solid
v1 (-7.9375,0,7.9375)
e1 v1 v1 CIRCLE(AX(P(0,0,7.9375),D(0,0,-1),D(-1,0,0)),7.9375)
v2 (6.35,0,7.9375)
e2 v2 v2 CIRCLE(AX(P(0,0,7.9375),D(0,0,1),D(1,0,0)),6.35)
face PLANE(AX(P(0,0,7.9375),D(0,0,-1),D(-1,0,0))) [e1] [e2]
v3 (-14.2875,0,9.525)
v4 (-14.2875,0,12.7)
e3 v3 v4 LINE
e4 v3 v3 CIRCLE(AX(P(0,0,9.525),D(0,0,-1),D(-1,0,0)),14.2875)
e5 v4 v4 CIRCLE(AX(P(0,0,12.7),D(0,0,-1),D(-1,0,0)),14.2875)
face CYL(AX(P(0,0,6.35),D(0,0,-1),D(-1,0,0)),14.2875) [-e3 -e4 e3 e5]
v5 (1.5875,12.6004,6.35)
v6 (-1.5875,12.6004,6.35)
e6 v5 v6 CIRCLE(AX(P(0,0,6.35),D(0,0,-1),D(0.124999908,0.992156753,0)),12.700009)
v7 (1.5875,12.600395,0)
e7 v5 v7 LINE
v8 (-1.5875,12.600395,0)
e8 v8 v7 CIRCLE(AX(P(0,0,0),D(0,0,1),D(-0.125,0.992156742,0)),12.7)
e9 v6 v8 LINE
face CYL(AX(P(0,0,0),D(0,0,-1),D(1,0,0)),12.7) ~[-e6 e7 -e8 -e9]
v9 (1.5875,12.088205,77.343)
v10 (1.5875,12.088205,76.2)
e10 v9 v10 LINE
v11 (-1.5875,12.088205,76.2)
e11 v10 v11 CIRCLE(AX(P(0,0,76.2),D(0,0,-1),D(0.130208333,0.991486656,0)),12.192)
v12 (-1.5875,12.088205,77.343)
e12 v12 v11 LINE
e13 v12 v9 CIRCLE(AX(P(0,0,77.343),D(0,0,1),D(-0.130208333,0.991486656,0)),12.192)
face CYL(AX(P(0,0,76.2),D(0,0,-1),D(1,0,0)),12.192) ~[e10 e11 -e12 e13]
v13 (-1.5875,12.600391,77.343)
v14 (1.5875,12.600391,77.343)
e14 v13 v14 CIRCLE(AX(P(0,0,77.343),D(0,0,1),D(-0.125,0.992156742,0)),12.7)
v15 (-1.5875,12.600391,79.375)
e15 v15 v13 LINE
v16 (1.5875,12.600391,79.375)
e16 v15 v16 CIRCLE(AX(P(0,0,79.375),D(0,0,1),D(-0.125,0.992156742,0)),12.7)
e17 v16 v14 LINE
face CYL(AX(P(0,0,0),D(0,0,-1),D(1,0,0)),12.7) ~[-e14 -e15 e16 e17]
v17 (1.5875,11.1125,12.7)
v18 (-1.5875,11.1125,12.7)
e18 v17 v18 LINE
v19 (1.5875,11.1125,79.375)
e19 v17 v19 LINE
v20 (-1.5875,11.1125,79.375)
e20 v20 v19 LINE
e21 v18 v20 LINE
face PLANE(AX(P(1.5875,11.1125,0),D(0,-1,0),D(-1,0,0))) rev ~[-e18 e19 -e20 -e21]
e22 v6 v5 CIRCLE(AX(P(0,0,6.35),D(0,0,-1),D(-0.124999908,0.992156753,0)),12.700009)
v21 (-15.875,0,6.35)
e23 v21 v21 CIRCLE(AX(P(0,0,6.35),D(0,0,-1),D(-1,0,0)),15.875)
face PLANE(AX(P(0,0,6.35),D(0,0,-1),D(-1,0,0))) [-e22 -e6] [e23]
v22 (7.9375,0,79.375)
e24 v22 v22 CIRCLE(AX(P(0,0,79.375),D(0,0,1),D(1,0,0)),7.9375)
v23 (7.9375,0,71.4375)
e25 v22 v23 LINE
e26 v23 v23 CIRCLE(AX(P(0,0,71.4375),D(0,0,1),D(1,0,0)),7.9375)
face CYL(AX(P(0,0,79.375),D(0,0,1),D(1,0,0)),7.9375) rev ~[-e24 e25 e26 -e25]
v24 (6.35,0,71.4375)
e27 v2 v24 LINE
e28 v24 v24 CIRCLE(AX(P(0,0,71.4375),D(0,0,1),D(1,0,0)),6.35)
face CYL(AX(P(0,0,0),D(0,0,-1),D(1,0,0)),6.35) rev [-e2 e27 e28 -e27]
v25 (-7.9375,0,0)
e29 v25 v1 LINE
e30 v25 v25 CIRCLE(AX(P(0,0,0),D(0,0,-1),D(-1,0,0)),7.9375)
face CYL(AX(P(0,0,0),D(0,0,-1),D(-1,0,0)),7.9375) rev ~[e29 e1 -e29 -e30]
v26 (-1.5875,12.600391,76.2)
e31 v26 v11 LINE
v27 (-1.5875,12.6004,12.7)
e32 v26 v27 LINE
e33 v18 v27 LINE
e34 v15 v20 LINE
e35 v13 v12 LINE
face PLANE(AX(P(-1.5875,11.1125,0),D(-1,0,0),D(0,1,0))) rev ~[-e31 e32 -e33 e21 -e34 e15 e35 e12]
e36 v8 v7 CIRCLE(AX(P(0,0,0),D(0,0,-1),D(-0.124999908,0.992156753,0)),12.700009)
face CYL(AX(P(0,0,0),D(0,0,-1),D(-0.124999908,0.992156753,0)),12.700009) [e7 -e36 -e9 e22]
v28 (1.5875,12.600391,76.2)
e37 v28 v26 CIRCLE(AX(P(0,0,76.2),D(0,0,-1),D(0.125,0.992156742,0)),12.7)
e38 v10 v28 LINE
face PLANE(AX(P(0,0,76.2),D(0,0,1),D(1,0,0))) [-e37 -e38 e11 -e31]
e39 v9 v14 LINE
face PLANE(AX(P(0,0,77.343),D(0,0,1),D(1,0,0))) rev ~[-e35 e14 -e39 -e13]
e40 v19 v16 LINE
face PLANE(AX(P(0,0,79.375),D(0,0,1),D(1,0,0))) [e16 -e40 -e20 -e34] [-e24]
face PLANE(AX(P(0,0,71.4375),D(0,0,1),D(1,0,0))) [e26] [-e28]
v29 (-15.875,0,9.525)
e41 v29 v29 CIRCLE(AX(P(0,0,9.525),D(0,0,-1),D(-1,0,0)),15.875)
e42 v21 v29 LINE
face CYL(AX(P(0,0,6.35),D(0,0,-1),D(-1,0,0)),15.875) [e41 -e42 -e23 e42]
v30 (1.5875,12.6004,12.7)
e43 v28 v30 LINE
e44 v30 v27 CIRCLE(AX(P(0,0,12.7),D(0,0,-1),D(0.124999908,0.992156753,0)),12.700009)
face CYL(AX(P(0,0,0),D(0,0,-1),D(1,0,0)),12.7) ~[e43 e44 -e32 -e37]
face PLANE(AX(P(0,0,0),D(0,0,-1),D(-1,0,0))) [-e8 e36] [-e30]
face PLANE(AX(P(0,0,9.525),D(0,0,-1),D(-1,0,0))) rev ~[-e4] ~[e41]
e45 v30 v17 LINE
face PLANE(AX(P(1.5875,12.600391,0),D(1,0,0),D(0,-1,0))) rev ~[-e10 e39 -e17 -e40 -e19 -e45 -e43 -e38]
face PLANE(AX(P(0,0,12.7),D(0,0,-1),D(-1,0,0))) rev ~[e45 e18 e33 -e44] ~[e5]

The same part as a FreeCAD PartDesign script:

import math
import FreeCAD as App
import Part
import Sketcher
Q = App.Units.Quantity


def add_polygon(sketch, points):
    """Adds a closed chain of lines whose ends are joined by coincident constraints."""
    first, n = sketch.GeometryCount, len(points)
    for a, b in zip(points, points[1:] + points[:1]):
        sketch.addGeometry(Part.LineSegment(App.Vector(*a, 0), App.Vector(*b, 0)), False)
    for i in range(n):
        sketch.addConstraint(Sketcher.Constraint("Coincident", first + i, 2, first + (i + 1) % n, 1))

doc = App.newDocument("Part")
body = doc.addObject("PartDesign::Body", "Body")

sketch1 = body.newObject("Sketcher::SketchObject", "Sketch")
sketch1.AttachmentSupport = (doc.getObject("XY_Plane"), [""])
sketch1.MapMode = "FlatFace"
sketch1.addGeometry([
    Part.Circle(App.Vector(0, 0, 0), App.Vector(0, 0, 1), 13),
    Part.Circle(App.Vector(0, 0, 0), App.Vector(0, 0, 1), 6),
], False)
sketch1.addConstraint([
    Sketcher.Constraint("Coincident", 0, 3, -1, 1),
    Sketcher.Constraint("Coincident", 1, 3, -1, 1),
    Sketcher.Constraint("Diameter", 0, Q("1 in")),
    Sketcher.Constraint("Diameter", 1, Q("0.5 in")),
])
pad1 = body.newObject("PartDesign::Pad", "Pad")
pad1.Profile = sketch1
pad1.Length = Q("3.125 in")

sketch2 = body.newObject("Sketcher::SketchObject", "Sketch001")
sketch2.AttachmentSupport = (doc.getObject("XY_Plane"), [""])
sketch2.MapMode = "FlatFace"
sketch2.AttachmentOffset = App.Placement(App.Vector(0, 0, 3 * 25.4), App.Rotation())
sketch2.addGeometry([
    Part.Circle(App.Vector(0, 0, 0), App.Vector(0, 0, 1), 13),
    Part.Circle(App.Vector(0, 0, 0), App.Vector(0, 0, 1), 12),
], False)
sketch2.addConstraint([
    Sketcher.Constraint("Coincident", 0, 3, -1, 1),
    Sketcher.Constraint("Coincident", 1, 3, -1, 1),
    Sketcher.Constraint("Diameter", 1, Q("0.96 in")),
    Sketcher.Constraint("Diameter", 0, Q("1 in")),
])
pocket1 = body.newObject("PartDesign::Pocket", "Pocket")
pocket1.Profile = sketch2
pocket1.Length = Q("0.045 in")
pocket1.Reversed = True

sketch3 = body.newObject("Sketcher::SketchObject", "Sketch002")
sketch3.AttachmentSupport = (doc.getObject("XY_Plane"), [""])
sketch3.MapMode = "FlatFace"
add_polygon(sketch3, [(1.6, 11.1), (1.6, 14.3), (-1.6, 14.3), (-1.6, 11.1)])
sketch3.addConstraint([
    Sketcher.Constraint("Vertical", 0),
    Sketcher.Constraint("Horizontal", 1),
    Sketcher.Constraint("Vertical", 2),
    Sketcher.Constraint("Horizontal", 3),
    Sketcher.Constraint("Equal", 3, 0),
    Sketcher.Constraint("DistanceX", 1, 2, 1, 1, Q("0.125 in")),
    Sketcher.Constraint("DistanceX", -1, 1, 0, 2, Q("0.0625 in")),
    Sketcher.Constraint("DistanceY", -1, 1, 0, 2, Q("0.5625 in")),
])
pocket2 = body.newObject("PartDesign::Pocket", "Pocket001")
pocket2.Profile = sketch3
pocket2.Type = "ThroughAll"
pocket2.Reversed = True

sketch4 = body.newObject("Sketcher::SketchObject", "Sketch003")
sketch4.AttachmentSupport = (doc.getObject("XY_Plane"), [""])
sketch4.MapMode = "FlatFace"
sketch4.AttachmentOffset = App.Placement(App.Vector(0, 0, 3.125 * 25.4), App.Rotation())
sketch4.addGeometry([
    Part.Circle(App.Vector(0, 0, 0), App.Vector(0, 0, 1), 8),
    Part.Circle(App.Vector(0, 0, 0), App.Vector(0, 0, 1), 6),
], False)
sketch4.addConstraint([
    Sketcher.Constraint("Coincident", 0, 3, -1, 1),
    Sketcher.Constraint("Coincident", 1, 3, -1, 1),
    Sketcher.Constraint("Diameter", 0, Q("0.625 in")),
    Sketcher.Constraint("Diameter", 1, Q("0.5 in")),
])
pocket3 = body.newObject("PartDesign::Pocket", "Pocket002")
pocket3.Profile = sketch4
pocket3.Length = Q("0.3125 in")

sketch5 = body.newObject("Sketcher::SketchObject", "Sketch004")
sketch5.AttachmentSupport = (doc.getObject("XY_Plane"), [""])
sketch5.MapMode = "FlatFace"
sketch5.addGeometry([
    Part.Circle(App.Vector(0, 0, 0), App.Vector(0, 0, 1), 8),
    Part.Circle(App.Vector(0, 0, 0), App.Vector(0, 0, 1), 6),
], False)
sketch5.addConstraint([
    Sketcher.Constraint("Coincident", 0, 3, -1, 1),
    Sketcher.Constraint("Coincident", 1, 3, -1, 1),
    Sketcher.Constraint("Diameter", 0, Q("0.625 in")),
    Sketcher.Constraint("Diameter", 1, Q("0.5 in")),
])
pocket4 = body.newObject("PartDesign::Pocket", "Pocket003")
pocket4.Profile = sketch5
pocket4.Length = Q("0.3125 in")
pocket4.Reversed = True

sketch6 = body.newObject("Sketcher::SketchObject", "Sketch005")
sketch6.AttachmentSupport = (doc.getObject("XY_Plane"), [""])
sketch6.MapMode = "FlatFace"
sketch6.AttachmentOffset = App.Placement(App.Vector(0, 0, 0.25 * 25.4), App.Rotation())
sketch6.addGeometry([
    Part.Circle(App.Vector(0, 0, 0), App.Vector(0, 0, 1), 15.9),
    Part.LineSegment(App.Vector(1.6, 12.6, 0), App.Vector(1.6, 11.1, 0)),
    Part.LineSegment(App.Vector(1.6, 11.1, 0), App.Vector(-1.6, 11.1, 0)),
    Part.LineSegment(App.Vector(-1.6, 11.1, 0), App.Vector(-1.6, 12.6, 0)),
    Part.ArcOfCircle(Part.Circle(App.Vector(0, 0, 0), App.Vector(0, 0, 1), 12.7), math.radians(97), math.radians(443)),
], False)
sketch6.addConstraint([
    Sketcher.Constraint("Coincident", 1, 2, 2, 1),
    Sketcher.Constraint("Coincident", 2, 2, 3, 1),
    Sketcher.Constraint("Coincident", 3, 2, 4, 1),
    Sketcher.Constraint("Coincident", 4, 2, 1, 1),
    Sketcher.Constraint("Vertical", 1),
    Sketcher.Constraint("Horizontal", 2),
    Sketcher.Constraint("Vertical", 3),
    Sketcher.Constraint("Coincident", 0, 3, -1, 1),
    Sketcher.Constraint("Coincident", 4, 3, -1, 1),
    Sketcher.Constraint("Horizontal", 3, 2, 4, 2),
    Sketcher.Constraint("Diameter", 0, Q("1.25 in")),
    Sketcher.Constraint("Radius", 4, Q("0.5 in")),
    Sketcher.Constraint("DistanceX", 2, 2, 2, 1, Q("0.125 in")),
    Sketcher.Constraint("DistanceY", -1, 1, 1, 2, Q("0.4375 in")),
])
pad2 = body.newObject("PartDesign::Pad", "Pad001")
pad2.Profile = sketch6
pad2.Length = Q("0.125 in")

sketch7 = body.newObject("Sketcher::SketchObject", "Sketch006")
sketch7.AttachmentSupport = (doc.getObject("XY_Plane"), [""])
sketch7.MapMode = "FlatFace"
sketch7.addGeometry([
    Part.LineSegment(App.Vector(1.6, 12.6, 0), App.Vector(1.6, 11.1, 0)),
    Part.LineSegment(App.Vector(1.6, 11.1, 0), App.Vector(-1.6, 11.1, 0)),
    Part.LineSegment(App.Vector(-1.6, 11.1, 0), App.Vector(-1.6, 12.6, 0)),
    Part.ArcOfCircle(Part.Circle(App.Vector(0, 0, 0), App.Vector(0, 0, 1), 12.7), math.radians(82.82), math.radians(97.18)),
], False)
sketch7.addConstraint([
    Sketcher.Constraint("Coincident", 0, 2, 1, 1),
    Sketcher.Constraint("Coincident", 1, 2, 2, 1),
    Sketcher.Constraint("Coincident", 2, 2, 3, 2),
    Sketcher.Constraint("Coincident", 3, 1, 0, 1),
    Sketcher.Constraint("Vertical", 0),
    Sketcher.Constraint("Horizontal", 1),
    Sketcher.Constraint("Vertical", 2),
    Sketcher.Constraint("Coincident", 3, 3, -1, 1),
    Sketcher.Constraint("Horizontal", 2, 2, 3, 1),
    Sketcher.Constraint("Radius", 3, Q("0.5 in")),
    Sketcher.Constraint("DistanceX", 1, 2, 1, 1, Q("0.125 in")),
    Sketcher.Constraint("DistanceY", -1, 1, 0, 2, Q("0.4375 in")),
])
pad3 = body.newObject("PartDesign::Pad", "Pad002")
pad3.Profile = sketch7
pad3.Length = Q("0.25 in")

sketch8 = body.newObject("Sketcher::SketchObject", "Sketch007")
sketch8.AttachmentSupport = (doc.getObject("XY_Plane"), [""])
sketch8.MapMode = "FlatFace"
sketch8.AttachmentOffset = App.Placement(App.Vector(0, 0, 0.25 * 25.4), App.Rotation())
sketch8.addGeometry([
    Part.Circle(App.Vector(0, 0, 0), App.Vector(0, 0, 1), 14.3),
    Part.ArcOfCircle(Part.Circle(App.Vector(0, 0, 0), App.Vector(0, 0, 1), 12.7), math.radians(97), math.radians(443)),
    Part.LineSegment(App.Vector(1.6, 12.6, 0), App.Vector(1.6, 11.1, 0)),
    Part.LineSegment(App.Vector(1.6, 11.1, 0), App.Vector(-1.6, 11.1, 0)),
    Part.LineSegment(App.Vector(-1.6, 11.1, 0), App.Vector(-1.6, 12.6, 0)),
], False)
sketch8.addConstraint([
    Sketcher.Constraint("Coincident", 1, 2, 2, 1),
    Sketcher.Constraint("Coincident", 2, 2, 3, 1),
    Sketcher.Constraint("Coincident", 3, 2, 4, 1),
    Sketcher.Constraint("Coincident", 4, 2, 1, 1),
    Sketcher.Constraint("Vertical", 2),
    Sketcher.Constraint("Horizontal", 3),
    Sketcher.Constraint("Vertical", 4),
    Sketcher.Constraint("Coincident", 0, 3, -1, 1),
    Sketcher.Constraint("Coincident", 1, 3, -1, 1),
    Sketcher.Constraint("Horizontal", 1, 2, 4, 2),
    Sketcher.Constraint("Diameter", 0, Q("1.125 in")),
    Sketcher.Constraint("Radius", 1, Q("0.5 in")),
    Sketcher.Constraint("DistanceX", 3, 2, 3, 1, Q("0.125 in")),
    Sketcher.Constraint("DistanceY", -1, 1, 2, 2, Q("0.4375 in")),
])
pad4 = body.newObject("PartDesign::Pad", "Pad003")
pad4.Profile = sketch8
pad4.Length = Q("0.25 in")

doc.recompute()
